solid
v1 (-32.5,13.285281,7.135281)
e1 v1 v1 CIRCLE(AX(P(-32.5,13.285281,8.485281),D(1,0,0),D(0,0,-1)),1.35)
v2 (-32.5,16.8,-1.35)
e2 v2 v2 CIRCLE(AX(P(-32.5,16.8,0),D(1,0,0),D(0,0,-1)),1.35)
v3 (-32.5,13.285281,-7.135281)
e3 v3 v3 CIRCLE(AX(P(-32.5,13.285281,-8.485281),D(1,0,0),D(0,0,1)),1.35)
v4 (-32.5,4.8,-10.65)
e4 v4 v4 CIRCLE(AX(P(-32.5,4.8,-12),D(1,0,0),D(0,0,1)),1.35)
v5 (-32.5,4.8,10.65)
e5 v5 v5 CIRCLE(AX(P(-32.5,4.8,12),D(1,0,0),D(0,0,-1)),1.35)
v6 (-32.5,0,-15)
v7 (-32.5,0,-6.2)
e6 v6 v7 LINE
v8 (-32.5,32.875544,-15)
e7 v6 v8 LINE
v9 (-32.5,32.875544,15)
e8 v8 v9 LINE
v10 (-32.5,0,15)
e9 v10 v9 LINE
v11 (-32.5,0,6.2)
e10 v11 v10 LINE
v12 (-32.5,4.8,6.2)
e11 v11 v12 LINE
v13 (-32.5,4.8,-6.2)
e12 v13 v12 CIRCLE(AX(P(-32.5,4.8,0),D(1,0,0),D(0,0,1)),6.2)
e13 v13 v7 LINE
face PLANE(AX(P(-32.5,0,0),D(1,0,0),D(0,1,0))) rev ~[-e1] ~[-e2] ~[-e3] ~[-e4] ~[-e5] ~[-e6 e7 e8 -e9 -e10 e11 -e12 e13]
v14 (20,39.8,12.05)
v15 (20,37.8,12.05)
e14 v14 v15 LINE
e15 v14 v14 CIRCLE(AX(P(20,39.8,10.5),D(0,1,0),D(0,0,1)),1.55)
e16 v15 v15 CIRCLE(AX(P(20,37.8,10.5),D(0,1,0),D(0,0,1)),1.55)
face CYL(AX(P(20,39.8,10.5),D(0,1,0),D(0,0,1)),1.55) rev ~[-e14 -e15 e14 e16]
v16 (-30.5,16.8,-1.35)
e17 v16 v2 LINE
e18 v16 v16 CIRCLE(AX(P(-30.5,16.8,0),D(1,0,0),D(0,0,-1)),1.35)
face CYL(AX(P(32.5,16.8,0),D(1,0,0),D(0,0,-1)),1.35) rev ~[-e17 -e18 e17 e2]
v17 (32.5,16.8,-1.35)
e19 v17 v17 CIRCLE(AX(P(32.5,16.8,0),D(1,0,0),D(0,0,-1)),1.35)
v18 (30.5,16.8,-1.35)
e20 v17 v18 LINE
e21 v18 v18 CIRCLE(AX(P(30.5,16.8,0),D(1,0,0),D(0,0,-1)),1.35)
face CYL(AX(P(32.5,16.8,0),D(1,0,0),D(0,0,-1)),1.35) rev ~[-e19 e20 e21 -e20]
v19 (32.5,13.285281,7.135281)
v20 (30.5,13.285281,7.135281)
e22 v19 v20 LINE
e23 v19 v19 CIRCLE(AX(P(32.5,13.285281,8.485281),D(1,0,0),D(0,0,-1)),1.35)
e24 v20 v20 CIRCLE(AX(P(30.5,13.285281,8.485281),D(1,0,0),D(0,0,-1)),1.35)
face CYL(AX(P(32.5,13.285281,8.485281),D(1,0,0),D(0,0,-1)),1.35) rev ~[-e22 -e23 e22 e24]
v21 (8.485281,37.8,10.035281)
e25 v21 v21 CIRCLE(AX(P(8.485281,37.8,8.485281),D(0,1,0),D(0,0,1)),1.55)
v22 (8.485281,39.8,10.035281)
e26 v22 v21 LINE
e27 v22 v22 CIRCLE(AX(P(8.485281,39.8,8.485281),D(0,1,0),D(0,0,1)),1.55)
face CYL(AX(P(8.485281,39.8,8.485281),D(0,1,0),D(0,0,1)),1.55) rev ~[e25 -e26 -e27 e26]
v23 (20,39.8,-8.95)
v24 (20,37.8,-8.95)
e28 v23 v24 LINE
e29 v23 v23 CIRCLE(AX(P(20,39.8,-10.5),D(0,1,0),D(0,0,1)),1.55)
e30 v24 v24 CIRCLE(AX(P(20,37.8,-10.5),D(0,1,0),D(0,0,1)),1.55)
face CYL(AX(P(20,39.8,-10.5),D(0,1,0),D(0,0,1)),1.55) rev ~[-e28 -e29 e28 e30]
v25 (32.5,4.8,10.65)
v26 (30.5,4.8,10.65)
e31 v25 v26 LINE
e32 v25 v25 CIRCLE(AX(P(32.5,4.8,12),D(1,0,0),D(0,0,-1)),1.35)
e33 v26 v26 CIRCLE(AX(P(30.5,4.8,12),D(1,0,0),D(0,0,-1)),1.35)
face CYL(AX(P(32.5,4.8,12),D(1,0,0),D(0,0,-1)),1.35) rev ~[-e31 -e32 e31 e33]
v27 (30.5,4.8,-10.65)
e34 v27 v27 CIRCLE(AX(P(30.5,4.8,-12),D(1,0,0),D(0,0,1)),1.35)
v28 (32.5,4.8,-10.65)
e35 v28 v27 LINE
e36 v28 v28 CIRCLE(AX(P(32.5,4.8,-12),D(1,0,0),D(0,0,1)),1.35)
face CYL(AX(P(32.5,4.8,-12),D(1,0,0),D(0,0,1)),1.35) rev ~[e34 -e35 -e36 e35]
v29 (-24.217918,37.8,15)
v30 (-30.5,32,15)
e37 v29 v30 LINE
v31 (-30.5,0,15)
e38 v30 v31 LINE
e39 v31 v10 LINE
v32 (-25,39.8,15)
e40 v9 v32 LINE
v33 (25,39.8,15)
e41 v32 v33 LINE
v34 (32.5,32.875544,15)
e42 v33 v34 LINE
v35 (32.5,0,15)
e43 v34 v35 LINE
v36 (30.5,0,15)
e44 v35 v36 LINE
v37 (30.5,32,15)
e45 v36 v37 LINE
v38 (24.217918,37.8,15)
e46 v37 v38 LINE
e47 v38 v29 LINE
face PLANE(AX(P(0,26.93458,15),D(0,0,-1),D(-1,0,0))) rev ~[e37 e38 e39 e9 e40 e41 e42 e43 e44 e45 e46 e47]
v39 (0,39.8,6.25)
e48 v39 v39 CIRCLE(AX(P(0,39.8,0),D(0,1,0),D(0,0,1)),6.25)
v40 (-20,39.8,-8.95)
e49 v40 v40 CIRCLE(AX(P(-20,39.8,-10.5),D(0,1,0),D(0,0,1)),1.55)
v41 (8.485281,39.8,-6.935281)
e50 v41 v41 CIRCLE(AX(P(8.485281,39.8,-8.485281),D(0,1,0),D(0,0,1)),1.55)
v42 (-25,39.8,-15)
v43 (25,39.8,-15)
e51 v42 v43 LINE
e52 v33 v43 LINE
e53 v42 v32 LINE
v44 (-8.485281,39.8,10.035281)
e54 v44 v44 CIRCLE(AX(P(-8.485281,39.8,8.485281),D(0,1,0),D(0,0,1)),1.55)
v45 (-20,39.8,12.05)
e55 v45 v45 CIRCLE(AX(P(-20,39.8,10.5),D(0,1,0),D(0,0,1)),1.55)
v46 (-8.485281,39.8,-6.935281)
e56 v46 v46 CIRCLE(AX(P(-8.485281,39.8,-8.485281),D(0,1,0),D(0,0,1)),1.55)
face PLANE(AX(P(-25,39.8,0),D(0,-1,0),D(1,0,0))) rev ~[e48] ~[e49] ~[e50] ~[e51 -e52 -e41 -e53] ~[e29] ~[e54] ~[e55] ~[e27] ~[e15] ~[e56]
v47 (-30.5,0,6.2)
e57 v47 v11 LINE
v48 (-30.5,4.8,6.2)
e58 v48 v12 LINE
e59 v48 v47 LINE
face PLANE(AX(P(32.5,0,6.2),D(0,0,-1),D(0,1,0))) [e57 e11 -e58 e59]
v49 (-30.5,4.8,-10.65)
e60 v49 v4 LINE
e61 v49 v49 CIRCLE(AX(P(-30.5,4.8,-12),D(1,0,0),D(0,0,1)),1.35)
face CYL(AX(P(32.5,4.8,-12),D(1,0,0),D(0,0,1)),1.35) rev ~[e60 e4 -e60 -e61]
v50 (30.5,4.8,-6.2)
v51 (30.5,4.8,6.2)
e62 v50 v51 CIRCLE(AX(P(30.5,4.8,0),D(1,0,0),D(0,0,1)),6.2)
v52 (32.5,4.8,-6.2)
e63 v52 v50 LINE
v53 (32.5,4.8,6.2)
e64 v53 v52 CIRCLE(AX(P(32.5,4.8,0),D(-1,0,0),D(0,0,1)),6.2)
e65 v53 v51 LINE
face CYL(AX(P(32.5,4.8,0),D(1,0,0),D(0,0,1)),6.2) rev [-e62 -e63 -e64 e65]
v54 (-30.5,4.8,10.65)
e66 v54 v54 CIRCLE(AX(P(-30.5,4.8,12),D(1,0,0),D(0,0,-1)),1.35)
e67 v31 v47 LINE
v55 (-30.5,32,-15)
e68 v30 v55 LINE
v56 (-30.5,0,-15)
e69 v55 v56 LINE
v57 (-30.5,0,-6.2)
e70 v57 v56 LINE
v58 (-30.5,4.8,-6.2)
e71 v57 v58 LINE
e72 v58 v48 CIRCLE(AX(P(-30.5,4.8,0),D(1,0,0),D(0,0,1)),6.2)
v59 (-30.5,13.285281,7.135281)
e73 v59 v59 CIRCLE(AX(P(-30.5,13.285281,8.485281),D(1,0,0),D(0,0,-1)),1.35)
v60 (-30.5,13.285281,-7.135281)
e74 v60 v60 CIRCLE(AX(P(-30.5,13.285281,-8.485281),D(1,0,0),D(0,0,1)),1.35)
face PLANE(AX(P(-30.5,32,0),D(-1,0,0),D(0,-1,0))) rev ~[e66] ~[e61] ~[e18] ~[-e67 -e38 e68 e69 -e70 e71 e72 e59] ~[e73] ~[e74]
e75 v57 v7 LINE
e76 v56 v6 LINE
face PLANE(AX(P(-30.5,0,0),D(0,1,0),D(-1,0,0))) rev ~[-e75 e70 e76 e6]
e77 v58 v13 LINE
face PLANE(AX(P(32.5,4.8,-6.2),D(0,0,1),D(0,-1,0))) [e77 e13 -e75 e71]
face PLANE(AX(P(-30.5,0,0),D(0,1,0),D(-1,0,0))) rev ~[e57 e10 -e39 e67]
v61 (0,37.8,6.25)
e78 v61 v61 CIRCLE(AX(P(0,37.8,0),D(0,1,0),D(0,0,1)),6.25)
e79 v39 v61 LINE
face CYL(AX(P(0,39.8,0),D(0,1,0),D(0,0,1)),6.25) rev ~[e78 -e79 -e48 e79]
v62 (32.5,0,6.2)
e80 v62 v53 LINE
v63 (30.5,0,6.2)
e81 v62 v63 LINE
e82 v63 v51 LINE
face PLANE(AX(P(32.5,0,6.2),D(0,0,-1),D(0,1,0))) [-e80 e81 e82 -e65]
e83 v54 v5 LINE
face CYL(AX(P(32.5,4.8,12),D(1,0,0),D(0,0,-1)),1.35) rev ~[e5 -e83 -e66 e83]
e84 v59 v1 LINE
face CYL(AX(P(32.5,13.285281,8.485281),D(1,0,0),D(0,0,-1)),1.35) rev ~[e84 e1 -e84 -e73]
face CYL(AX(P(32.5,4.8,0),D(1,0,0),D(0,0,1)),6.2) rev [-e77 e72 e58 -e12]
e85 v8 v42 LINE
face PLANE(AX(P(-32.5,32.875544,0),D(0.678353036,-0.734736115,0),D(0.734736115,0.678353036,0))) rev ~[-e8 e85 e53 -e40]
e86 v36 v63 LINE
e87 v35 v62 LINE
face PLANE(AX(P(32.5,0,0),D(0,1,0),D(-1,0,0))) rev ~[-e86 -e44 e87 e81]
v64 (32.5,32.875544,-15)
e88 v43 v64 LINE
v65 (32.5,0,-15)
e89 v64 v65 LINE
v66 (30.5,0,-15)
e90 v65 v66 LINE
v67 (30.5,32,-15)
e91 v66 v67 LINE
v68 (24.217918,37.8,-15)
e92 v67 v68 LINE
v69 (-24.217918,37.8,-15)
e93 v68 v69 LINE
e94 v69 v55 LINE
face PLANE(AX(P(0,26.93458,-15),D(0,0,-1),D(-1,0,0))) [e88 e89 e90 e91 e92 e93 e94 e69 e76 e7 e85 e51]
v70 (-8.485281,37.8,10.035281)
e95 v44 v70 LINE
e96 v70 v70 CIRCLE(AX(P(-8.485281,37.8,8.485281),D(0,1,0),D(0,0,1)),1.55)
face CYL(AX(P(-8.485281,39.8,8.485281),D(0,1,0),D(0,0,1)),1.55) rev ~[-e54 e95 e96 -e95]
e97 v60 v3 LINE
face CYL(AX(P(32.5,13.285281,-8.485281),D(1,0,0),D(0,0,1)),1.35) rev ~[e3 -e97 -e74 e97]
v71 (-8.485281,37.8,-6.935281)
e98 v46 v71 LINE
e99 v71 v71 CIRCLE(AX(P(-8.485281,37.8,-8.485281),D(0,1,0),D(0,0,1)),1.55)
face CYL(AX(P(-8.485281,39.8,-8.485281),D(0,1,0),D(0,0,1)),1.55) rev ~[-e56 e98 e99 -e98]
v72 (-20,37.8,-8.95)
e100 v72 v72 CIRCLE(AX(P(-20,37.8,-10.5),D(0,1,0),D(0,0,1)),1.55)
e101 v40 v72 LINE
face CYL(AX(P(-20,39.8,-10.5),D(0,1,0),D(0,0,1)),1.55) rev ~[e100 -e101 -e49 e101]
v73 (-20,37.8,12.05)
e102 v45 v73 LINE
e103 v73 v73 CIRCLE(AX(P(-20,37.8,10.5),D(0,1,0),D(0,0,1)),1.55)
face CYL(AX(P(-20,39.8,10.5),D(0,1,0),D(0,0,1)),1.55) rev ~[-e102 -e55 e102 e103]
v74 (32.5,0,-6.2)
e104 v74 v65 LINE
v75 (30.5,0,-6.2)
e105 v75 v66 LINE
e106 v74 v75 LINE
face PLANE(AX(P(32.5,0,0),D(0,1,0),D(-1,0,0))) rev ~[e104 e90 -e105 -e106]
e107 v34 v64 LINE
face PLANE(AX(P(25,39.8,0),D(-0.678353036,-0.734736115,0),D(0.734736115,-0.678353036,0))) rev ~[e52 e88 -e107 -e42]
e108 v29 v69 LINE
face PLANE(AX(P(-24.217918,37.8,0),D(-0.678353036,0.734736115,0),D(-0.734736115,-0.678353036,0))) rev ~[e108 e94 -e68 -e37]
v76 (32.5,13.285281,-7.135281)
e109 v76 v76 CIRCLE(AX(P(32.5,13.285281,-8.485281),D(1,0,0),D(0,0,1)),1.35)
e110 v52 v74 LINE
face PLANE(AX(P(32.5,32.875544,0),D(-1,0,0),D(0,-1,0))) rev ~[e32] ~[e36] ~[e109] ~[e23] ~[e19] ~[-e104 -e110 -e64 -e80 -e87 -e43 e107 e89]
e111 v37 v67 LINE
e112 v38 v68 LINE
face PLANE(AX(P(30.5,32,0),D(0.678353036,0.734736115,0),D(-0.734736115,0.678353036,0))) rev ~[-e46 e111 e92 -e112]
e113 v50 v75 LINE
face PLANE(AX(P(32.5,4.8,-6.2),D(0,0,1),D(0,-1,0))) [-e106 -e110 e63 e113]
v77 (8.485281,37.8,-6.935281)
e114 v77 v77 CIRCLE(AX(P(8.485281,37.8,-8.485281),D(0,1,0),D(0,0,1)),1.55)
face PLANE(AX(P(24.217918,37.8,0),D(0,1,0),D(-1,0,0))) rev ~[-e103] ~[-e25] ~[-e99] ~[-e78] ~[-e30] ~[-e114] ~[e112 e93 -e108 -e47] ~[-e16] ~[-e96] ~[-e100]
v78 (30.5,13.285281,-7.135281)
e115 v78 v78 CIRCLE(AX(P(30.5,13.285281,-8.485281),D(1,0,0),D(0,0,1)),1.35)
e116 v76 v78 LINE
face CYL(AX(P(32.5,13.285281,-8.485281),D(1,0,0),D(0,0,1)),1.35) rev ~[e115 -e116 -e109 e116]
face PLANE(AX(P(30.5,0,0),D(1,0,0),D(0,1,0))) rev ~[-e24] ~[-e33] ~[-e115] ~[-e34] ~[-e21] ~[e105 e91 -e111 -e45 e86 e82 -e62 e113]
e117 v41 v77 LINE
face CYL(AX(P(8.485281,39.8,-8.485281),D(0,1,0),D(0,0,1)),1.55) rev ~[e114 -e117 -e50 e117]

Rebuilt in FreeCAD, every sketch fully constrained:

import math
import FreeCAD as App
import Part
import Sketcher

V = App.Vector


def add_polygon(sketch, points):
    """Adds a closed chain of lines whose ends are joined by coincident constraints."""
    first, n = sketch.GeometryCount, len(points)
    for a, b in zip(points, points[1:] + points[:1]):
        sketch.addGeometry(Part.LineSegment(App.Vector(*a, 0), App.Vector(*b, 0)), False)
    for i in range(n):
        sketch.addConstraint(Sketcher.Constraint("Coincident", first + i, 2, first + (i + 1) % n, 1))

doc = App.newDocument("Part")
body = doc.addObject("PartDesign::Body", "Body")

# Sketch on XY plane
sketch1 = body.newObject("Sketcher::SketchObject", "Sketch")
sketch1.AttachmentSupport = (doc.getObject("XY_Plane"), [""])
sketch1.MapMode = "FlatFace"
add_polygon(sketch1, [(25, 39.8), (-25, 39.8), (-32.5, 32.9), (-32.5, 0), (-30.5, 0), (-30.5, 32), (-24.2, 37.8), (24.2, 37.8), (30.5, 32), (30.5, 0), (32.5, 0), (32.5, 32.9)])  # lines 0-11
sketch1.addConstraint([
    Sketcher.Constraint("Horizontal", 0),
    Sketcher.Constraint("Vertical", 2),
    Sketcher.Constraint("Horizontal", 3),
    Sketcher.Constraint("Vertical", 4),
    Sketcher.Constraint("Horizontal", 6),
    Sketcher.Constraint("Vertical", 8),
    Sketcher.Constraint("Horizontal", 9),
    Sketcher.Constraint("Vertical", 10),
    Sketcher.Constraint("Symmetric", 3, 2, 8, 2, -1, 1),
    Sketcher.Constraint("Symmetric", 2, 2, 9, 2, -2),
    Sketcher.Constraint("Parallel", 1, 5),
    Sketcher.Constraint("Parallel", 7, 11),
    Sketcher.Constraint("Horizontal", 4, 2, 7, 2),
    Sketcher.Constraint("Horizontal", 1, 2, 10, 2),
    Sketcher.Constraint("Equal", 5, 7),
    Sketcher.Constraint("DistanceX", 0, 2, 0, 1, 50.0),
    Sketcher.Constraint("DistanceX", 3, 1, 3, 2, 2.0),
    Sketcher.Constraint("DistanceY", 4, 1, 4, 2, 32.0),
    Sketcher.Constraint("DistanceY", 5, 2, 0, 2, 2.0),
    Sketcher.Constraint("DistanceX", 4, 2, 7, 2, 61.0),
    Sketcher.Constraint("DistanceY", -1, 1, 0, 2, 39.8),
    Sketcher.Constraint("Distance", 5, 8.55012),
])
pad1 = body.newObject("PartDesign::Pad", "Pad")
pad1.Profile = sketch1
pad1.Length = 30
pad1.Midplane = True

# Sketch on XZ plane
sketch2 = body.newObject("Sketcher::SketchObject", "Sketch001")
sketch2.AttachmentSupport = (doc.getObject("XZ_Plane"), [""])
sketch2.MapMode = "FlatFace"
sketch2.AttachmentOffset = App.Placement(V(0, 0, -39.8), App.Rotation())
sketch2.addGeometry([
    Part.Circle(V(0, 0, 0), V(0, 0, 1), 6.2),  # 0
    Part.Circle(V(-8.5, -8.5, 0), V(0, 0, 1), 1.6),  # 1
    Part.Circle(V(-8.5, 8.5, 0), V(0, 0, 1), 1.6),  # 2
    Part.Circle(V(8.5, 8.5, 0), V(0, 0, 1), 1.6),  # 3
    Part.Circle(V(8.5, -8.5, 0), V(0, 0, 1), 1.6),  # 4
    Part.Circle(V(20, -10.5, 0), V(0, 0, 1), 1.6),  # 5
    Part.Circle(V(-20, -10.5, 0), V(0, 0, 1), 1.6),  # 6
    Part.Circle(V(20, 10.5, 0), V(0, 0, 1), 1.6),  # 7
    Part.Circle(V(-20, 10.5, 0), V(0, 0, 1), 1.6),  # 8
], False)
sketch2.addConstraint([
    Sketcher.Constraint("Coincident", 0, 3, -1, 1),
    Sketcher.Constraint("Equal", 1, 2),
    Sketcher.Constraint("Equal", 2, 3),
    Sketcher.Constraint("Equal", 3, 4),
    Sketcher.Constraint("Equal", 4, 5),
    Sketcher.Constraint("Equal", 5, 6),
    Sketcher.Constraint("Equal", 6, 7),
    Sketcher.Constraint("Equal", 7, 8),
    Sketcher.Constraint("Symmetric", 1, 3, 3, 3, -1, 1),
    Sketcher.Constraint("Symmetric", 2, 3, 4, 3, -1, 1),
    Sketcher.Constraint("Symmetric", 6, 3, 7, 3, -1, 1),
    Sketcher.Constraint("Symmetric", 5, 3, 8, 3, -1, 1),
    Sketcher.Constraint("Symmetric", 2, 3, 3, 3, -2),
    Sketcher.Constraint("Symmetric", 5, 3, 6, 3, -2),
    Sketcher.Constraint("Diameter", 0, 12.5),
    Sketcher.Constraint("Diameter", 1, 3.1),
    Sketcher.Constraint("DistanceX", -1, 1, 5, 3, 20.0),
    Sketcher.Constraint("DistanceY", 5, 3, 7, 3, 21.0),
    Sketcher.Constraint("DistanceX", 1, 3, -1, 1, 8.485281),
    Sketcher.Constraint("DistanceY", 1, 3, -1, 1, 8.485281),
])
pocket1 = body.newObject("PartDesign::Pocket", "Pocket")
pocket1.Profile = sketch2
pocket1.Type = "ThroughAll"
pocket1.Reversed = True

# Sketch on YZ plane
sketch3 = body.newObject("Sketcher::SketchObject", "Sketch002")
sketch3.AttachmentSupport = (doc.getObject("YZ_Plane"), [""])
sketch3.MapMode = "FlatFace"
sketch3.AttachmentOffset = App.Placement(V(0, 0, 32.5), App.Rotation())
sketch3.addGeometry([
    Part.Circle(V(4.8, 12, 0), V(0, 0, 1), 1.4),  # 0
    Part.Circle(V(16.8, 0, 0), V(0, 0, 1), 1.4),  # 1
    Part.Circle(V(13.3, 8.5, 0), V(0, 0, 1), 1.4),  # 2
    Part.Circle(V(4.8, -12, 0), V(0, 0, 1), 1.4),  # 3
    Part.Circle(V(13.3, -8.5, 0), V(0, 0, 1), 1.4),  # 4
    Part.LineSegment(V(4.8, 6.2, 0), V(0, 6.2, 0)),  # 5
    Part.LineSegment(V(0, 6.2, 0), V(0, -6.2, 0)),  # 6
    Part.LineSegment(V(0, -6.2, 0), V(4.8, -6.2, 0)),  # 7
    Part.ArcOfCircle(Part.Circle(V(4.8, 0, 0), V(0, 0, 1), 6.2), math.radians(-90), math.radians(90)),  # 8
], False)
sketch3.addConstraint([
    Sketcher.Constraint("Coincident", 5, 2, 6, 1),
    Sketcher.Constraint("Coincident", 6, 2, 7, 1),
    Sketcher.Constraint("Tangent", 7, 2, 8, 1),
    Sketcher.Constraint("Tangent", 8, 2, 5, 1),
    Sketcher.Constraint("Horizontal", 5),
    Sketcher.Constraint("Vertical", 6),
    Sketcher.Constraint("Horizontal", 7),
    Sketcher.Constraint("Equal", 0, 1),
    Sketcher.Constraint("Equal", 1, 2),
    Sketcher.Constraint("Equal", 2, 3),
    Sketcher.Constraint("Equal", 3, 4),
    Sketcher.Constraint("Symmetric", 5, 2, 6, 2, -1, 1),
    Sketcher.Constraint("Symmetric", 0, 3, 3, 3, -1),
    Sketcher.Constraint("Symmetric", 2, 3, 4, 3, -1),
    Sketcher.Constraint("PointOnObject", 1, 3, -1),
    Sketcher.Constraint("Vertical", 3, 3, 8, 3),
    Sketcher.Constraint("Diameter", 0, 2.7),
    Sketcher.Constraint("Radius", 8, 6.2),
    Sketcher.Constraint("DistanceX", 5, 2, 5, 1, 4.8),
    Sketcher.Constraint("DistanceY", -1, 1, 0, 3, 12.0),
    Sketcher.Constraint("DistanceX", 0, 3, 1, 3, 12.0),
    Sketcher.Constraint("DistanceX", -1, 1, 2, 3, 13.285281),
    Sketcher.Constraint("DistanceY", -1, 1, 2, 3, 8.485281),
])
pocket2 = body.newObject("PartDesign::Pocket", "Pocket001")
pocket2.Profile = sketch3
pocket2.Type = "ThroughAll"

doc.recompute()
